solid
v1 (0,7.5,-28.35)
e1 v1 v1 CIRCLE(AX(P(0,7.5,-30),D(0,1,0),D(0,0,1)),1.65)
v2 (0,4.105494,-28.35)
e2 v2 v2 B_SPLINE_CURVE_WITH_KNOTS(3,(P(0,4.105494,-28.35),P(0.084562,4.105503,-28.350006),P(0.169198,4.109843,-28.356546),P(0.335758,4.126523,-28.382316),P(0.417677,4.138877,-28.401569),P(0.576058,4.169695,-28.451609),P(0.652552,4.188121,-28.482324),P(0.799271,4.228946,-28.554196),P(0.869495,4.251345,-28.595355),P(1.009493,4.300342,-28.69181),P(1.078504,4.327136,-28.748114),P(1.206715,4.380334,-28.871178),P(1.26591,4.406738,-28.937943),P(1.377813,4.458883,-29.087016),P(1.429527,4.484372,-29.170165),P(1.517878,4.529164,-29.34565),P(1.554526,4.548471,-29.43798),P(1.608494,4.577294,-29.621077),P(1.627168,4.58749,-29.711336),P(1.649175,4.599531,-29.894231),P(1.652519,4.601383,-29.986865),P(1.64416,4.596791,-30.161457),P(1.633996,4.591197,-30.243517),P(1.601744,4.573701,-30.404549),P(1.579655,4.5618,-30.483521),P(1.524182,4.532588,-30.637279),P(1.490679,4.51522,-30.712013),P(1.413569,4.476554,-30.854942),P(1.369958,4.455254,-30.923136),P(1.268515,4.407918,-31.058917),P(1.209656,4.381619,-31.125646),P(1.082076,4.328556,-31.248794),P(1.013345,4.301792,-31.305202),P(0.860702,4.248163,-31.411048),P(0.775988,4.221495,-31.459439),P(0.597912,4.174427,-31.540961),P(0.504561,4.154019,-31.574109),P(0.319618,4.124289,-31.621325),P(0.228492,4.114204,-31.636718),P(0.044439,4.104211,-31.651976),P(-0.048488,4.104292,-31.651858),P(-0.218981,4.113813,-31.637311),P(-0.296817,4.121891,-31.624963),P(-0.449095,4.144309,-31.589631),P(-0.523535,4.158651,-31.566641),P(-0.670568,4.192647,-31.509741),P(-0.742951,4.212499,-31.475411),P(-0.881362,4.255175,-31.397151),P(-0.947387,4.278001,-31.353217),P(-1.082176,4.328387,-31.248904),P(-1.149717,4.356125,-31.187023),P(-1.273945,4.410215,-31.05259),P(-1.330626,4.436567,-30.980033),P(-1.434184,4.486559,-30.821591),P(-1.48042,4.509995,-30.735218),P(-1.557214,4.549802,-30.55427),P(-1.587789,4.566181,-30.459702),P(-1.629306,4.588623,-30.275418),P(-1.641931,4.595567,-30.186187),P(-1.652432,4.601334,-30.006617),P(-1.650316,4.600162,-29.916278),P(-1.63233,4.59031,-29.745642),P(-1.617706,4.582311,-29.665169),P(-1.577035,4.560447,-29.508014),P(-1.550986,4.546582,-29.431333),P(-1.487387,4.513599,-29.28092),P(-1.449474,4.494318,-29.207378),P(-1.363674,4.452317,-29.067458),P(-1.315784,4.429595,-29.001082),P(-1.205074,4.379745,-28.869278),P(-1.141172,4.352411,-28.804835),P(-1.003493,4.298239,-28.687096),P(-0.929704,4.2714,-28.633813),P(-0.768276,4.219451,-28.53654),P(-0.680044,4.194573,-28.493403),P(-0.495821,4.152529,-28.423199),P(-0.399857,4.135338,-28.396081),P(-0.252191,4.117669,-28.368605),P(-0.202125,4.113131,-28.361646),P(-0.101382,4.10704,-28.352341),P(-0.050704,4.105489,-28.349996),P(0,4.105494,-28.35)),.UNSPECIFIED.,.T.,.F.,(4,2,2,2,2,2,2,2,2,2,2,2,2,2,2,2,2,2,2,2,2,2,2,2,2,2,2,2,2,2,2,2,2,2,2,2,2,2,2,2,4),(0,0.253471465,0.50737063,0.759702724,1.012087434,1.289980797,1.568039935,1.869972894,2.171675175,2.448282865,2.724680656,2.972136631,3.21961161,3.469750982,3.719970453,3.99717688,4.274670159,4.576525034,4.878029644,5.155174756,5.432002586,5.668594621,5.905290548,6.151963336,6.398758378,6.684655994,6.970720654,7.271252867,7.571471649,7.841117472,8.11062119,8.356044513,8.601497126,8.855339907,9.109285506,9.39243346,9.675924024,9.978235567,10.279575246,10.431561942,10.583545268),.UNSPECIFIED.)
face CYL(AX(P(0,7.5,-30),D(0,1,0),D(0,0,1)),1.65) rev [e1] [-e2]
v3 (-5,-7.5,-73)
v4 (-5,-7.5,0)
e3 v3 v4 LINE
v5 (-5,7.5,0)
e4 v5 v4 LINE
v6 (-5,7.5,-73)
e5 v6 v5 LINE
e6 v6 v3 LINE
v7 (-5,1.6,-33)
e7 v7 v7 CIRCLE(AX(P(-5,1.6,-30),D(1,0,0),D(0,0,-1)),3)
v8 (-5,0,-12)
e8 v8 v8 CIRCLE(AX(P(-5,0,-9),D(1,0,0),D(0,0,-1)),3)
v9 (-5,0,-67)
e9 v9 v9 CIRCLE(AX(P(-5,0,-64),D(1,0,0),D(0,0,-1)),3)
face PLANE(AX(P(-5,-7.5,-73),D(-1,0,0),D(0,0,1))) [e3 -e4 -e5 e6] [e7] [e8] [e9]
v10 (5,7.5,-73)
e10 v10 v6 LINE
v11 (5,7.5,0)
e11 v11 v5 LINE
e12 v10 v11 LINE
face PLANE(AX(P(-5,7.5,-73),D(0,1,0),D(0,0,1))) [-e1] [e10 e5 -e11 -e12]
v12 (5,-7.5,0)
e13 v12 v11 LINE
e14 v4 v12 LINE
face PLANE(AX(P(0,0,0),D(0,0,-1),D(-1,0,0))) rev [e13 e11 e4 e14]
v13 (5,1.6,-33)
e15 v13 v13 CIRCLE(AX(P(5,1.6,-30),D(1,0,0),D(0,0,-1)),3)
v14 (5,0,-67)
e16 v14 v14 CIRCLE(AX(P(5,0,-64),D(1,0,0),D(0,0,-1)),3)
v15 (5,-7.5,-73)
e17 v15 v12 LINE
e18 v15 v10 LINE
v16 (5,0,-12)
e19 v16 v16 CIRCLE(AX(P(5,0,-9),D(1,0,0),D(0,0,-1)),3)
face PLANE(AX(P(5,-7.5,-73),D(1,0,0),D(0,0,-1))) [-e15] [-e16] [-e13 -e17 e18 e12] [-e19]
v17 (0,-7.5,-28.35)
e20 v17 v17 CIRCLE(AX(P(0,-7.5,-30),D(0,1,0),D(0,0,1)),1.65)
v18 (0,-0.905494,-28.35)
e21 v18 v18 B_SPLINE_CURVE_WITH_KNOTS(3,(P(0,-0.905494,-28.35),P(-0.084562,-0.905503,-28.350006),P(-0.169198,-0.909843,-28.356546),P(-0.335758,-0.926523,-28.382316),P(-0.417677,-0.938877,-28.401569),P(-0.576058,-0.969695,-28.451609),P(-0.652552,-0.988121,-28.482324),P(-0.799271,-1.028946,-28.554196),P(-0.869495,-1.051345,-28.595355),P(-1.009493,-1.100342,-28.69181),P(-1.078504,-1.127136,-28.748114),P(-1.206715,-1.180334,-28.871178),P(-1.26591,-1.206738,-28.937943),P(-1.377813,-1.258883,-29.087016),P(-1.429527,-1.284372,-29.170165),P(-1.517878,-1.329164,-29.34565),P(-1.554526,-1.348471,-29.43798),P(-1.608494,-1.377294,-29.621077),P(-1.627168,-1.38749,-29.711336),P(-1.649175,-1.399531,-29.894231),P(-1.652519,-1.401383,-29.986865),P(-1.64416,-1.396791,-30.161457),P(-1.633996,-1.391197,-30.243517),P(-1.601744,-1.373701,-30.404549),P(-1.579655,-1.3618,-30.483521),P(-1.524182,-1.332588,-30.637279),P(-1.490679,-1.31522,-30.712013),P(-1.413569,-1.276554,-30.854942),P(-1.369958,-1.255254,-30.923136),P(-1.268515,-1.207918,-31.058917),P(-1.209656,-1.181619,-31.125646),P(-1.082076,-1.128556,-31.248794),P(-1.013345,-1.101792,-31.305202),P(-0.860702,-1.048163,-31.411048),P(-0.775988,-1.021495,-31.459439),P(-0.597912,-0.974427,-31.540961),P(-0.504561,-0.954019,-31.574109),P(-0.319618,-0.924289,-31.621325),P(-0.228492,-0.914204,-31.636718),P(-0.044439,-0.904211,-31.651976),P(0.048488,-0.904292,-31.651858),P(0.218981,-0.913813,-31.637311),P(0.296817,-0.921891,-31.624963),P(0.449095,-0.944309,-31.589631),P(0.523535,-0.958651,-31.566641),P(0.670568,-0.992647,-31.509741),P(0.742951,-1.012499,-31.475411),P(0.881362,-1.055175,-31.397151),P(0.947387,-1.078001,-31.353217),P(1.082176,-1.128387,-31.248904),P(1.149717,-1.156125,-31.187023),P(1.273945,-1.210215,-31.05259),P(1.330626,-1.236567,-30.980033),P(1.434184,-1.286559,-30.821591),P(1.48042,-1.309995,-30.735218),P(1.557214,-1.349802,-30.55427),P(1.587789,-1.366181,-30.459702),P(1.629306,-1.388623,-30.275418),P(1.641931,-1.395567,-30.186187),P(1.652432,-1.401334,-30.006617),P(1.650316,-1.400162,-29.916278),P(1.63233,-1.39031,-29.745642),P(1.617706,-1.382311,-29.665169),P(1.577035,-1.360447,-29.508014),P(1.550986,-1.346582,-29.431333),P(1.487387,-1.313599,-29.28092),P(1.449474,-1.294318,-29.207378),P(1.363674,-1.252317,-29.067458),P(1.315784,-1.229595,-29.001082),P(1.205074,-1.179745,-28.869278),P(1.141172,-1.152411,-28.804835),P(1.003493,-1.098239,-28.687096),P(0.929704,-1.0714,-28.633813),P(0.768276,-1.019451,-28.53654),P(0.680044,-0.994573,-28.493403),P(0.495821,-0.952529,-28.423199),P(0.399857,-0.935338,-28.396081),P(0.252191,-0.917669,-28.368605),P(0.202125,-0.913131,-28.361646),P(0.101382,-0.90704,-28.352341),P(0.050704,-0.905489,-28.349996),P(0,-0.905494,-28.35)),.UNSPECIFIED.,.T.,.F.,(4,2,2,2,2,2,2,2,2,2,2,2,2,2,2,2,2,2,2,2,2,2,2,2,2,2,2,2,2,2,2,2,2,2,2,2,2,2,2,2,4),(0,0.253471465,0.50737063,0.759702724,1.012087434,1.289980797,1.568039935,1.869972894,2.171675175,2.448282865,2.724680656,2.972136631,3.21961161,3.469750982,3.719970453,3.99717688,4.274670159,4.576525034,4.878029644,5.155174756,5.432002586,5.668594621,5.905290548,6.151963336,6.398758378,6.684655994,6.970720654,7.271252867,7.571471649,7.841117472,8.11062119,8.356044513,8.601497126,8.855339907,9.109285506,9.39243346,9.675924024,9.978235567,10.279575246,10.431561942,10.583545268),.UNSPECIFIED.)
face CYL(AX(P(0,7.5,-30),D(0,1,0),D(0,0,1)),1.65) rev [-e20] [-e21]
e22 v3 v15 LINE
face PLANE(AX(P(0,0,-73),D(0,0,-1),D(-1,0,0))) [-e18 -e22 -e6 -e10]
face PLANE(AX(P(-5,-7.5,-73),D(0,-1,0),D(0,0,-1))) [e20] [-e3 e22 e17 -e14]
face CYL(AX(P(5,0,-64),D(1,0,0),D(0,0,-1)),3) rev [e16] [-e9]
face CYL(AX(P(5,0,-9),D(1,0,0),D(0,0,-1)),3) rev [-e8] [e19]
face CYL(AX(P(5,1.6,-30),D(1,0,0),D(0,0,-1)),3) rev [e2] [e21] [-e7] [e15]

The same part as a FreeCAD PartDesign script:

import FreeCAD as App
import Part
import Sketcher
Q = App.Units.Quantity


def add_polygon(sketch, points):
    """Adds a closed chain of lines whose ends are joined by coincident constraints."""
    first, n = sketch.GeometryCount, len(points)
    for a, b in zip(points, points[1:] + points[:1]):
        sketch.addGeometry(Part.LineSegment(App.Vector(*a, 0), App.Vector(*b, 0)), False)
    for i in range(n):
        sketch.addConstraint(Sketcher.Constraint("Coincident", first + i, 2, first + (i + 1) % n, 1))

doc = App.newDocument("Part")
body = doc.addObject("PartDesign::Body", "Body")

sketch1 = doc.addObject("Sketcher::SketchObject", "Sketch")
body.addObject(sketch1)
sketch1.AttachmentSupport = (doc.XY_Plane, [""])
sketch1.MapMode = "FlatFace"
add_polygon(sketch1, [(-5, 8), (-5, -8), (5, -8), (5, 8)])
sketch1.addConstraint(Sketcher.Constraint("Vertical", 0))
sketch1.addConstraint(Sketcher.Constraint("Horizontal", 1))
sketch1.addConstraint(Sketcher.Constraint("Vertical", 2))
sketch1.addConstraint(Sketcher.Constraint("Horizontal", 3))
sketch1.addConstraint(Sketcher.Constraint("Symmetric", 0, 2, 2, 2, -1, 1))
sketch1.addConstraint(Sketcher.Constraint("DistanceX", 1, 1, 1, 2, Q("10 mm")))
sketch1.addConstraint(Sketcher.Constraint("DistanceY", 0, 2, 0, 1, Q("15 mm")))
pad1 = doc.addObject("PartDesign::Pad", "Pad")
body.addObject(pad1)
pad1.Profile = sketch1
pad1.Length = 73
pad1.Reversed = True

sketch2 = doc.addObject("Sketcher::SketchObject", "Sketch001")
body.addObject(sketch2)
sketch2.AttachmentSupport = (doc.YZ_Plane, [""])
sketch2.MapMode = "FlatFace"
sketch2.AttachmentOffset = App.Placement(App.Vector(0, 0, 5), App.Rotation())
sketch2.addGeometry(Part.Circle(App.Vector(0, -9, 0), App.Vector(0, 0, 1), 3), False)
sketch2.addGeometry(Part.Circle(App.Vector(0, -64, 0), App.Vector(0, 0, 1), 3), False)
sketch2.addConstraint(Sketcher.Constraint("Equal", 0, 1))
sketch2.addConstraint(Sketcher.Constraint("PointOnObject", 0, 3, -2))
sketch2.addConstraint(Sketcher.Constraint("PointOnObject", 1, 3, -2))
sketch2.addConstraint(Sketcher.Constraint("Diameter", 0, Q("6 mm")))
sketch2.addConstraint(Sketcher.Constraint("DistanceY", 0, 3, -1, 1, Q("9 mm")))
sketch2.addConstraint(Sketcher.Constraint("DistanceY", 1, 3, -1, 1, Q("64 mm")))
doc.recompute()
hole = doc.addObject("PartDesign::Hole", "Hole")
body.addObject(hole)
hole.Profile = sketch2
hole.ThreadType = "None"
hole.Diameter = 6
hole.DepthType = "ThroughAll"

sketch3 = doc.addObject("Sketcher::SketchObject", "Sketch002")
body.addObject(sketch3)
sketch3.AttachmentSupport = (doc.YZ_Plane, [""])
sketch3.MapMode = "FlatFace"
sketch3.AttachmentOffset = App.Placement(App.Vector(0, 0, 5), App.Rotation())
sketch3.addGeometry(Part.Circle(App.Vector(1.6, -30, 0), App.Vector(0, 0, 1), 3), False)
sketch3.addConstraint(Sketcher.Constraint("Diameter", 0, Q("6 mm")))
sketch3.addConstraint(Sketcher.Constraint("DistanceY", 0, 3, -1, 1, Q("30 mm")))
sketch3.addConstraint(Sketcher.Constraint("DistanceX", -1, 1, 0, 3, Q("1.6 mm")))
doc.recompute()
hole2 = doc.addObject("PartDesign::Hole", "Hole001")
body.addObject(hole2)
hole2.Profile = sketch3
hole2.ThreadType = "None"
hole2.Diameter = 6
hole2.DepthType = "ThroughAll"

sketch4 = doc.addObject("Sketcher::SketchObject", "Sketch003")
body.addObject(sketch4)
sketch4.AttachmentSupport = (doc.XZ_Plane, [""])
sketch4.MapMode = "FlatFace"
sketch4.AttachmentOffset = App.Placement(App.Vector(0, 0, -7.5), App.Rotation())
sketch4.addGeometry(Part.Circle(App.Vector(0, -30, 0), App.Vector(0, 0, 1), 1.6), False)
sketch4.addConstraint(Sketcher.Constraint("PointOnObject", 0, 3, -2))
sketch4.addConstraint(Sketcher.Constraint("Diameter", 0, Q("3.3 mm")))
sketch4.addConstraint(Sketcher.Constraint("DistanceY", 0, 3, -1, 1, Q("30 mm")))
doc.recompute()
hole3 = doc.addObject("PartDesign::Hole", "Hole002")
body.addObject(hole3)
hole3.Profile = sketch4
hole3.ThreadType = "None"
hole3.Diameter = 3.3
hole3.DepthType = "ThroughAll"
hole3.Reversed = True

doc.recompute()
